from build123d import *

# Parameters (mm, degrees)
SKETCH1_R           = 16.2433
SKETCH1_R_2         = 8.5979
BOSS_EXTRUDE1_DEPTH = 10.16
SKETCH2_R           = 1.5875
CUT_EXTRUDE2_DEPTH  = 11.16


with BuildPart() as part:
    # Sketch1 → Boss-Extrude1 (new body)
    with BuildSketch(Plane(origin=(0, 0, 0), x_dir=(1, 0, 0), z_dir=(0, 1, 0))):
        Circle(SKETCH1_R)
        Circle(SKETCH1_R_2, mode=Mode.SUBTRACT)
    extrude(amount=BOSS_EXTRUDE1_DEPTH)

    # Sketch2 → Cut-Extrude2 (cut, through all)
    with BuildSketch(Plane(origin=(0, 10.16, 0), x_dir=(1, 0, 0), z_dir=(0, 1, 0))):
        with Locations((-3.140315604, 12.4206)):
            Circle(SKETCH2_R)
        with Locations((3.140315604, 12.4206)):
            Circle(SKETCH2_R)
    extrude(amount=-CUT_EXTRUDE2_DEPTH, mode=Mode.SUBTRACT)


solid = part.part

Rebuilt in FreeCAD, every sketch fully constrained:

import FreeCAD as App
import Part
import Sketcher

V = App.Vector
Q = App.Units.Quantity

doc = App.newDocument("Part")
body = doc.addObject("PartDesign::Body", "Body")

sketch1 = doc.addObject("Sketcher::SketchObject", "Sketch")
body.addObject(sketch1)
sketch1.AttachmentSupport = (doc.XZ_Plane, [""])
sketch1.MapMode = "FlatFace"
sketch1.addGeometry([
    Part.Circle(V(0, 0, 0), V(0, 0, 1), 16),
    Part.Circle(V(0, 0, 0), V(0, 0, 1), 9),
], False)
sketch1.addConstraint([
    Sketcher.Constraint("Coincident", 0, 3, -1, 1),
    Sketcher.Constraint("Coincident", 1, 3, -1, 1),
    Sketcher.Constraint("Diameter", 0, Q("1.279 in")),
    Sketcher.Constraint("Diameter", 1, Q("0.677 in")),
])
pad1 = doc.addObject("PartDesign::Pad", "Pad")
body.addObject(pad1)
pad1.Profile = sketch1
pad1.Length = Q("0.4 in")
pad1.Reversed = True

sketch2 = doc.addObject("Sketcher::SketchObject", "Sketch001")
body.addObject(sketch2)
sketch2.AttachmentSupport = (doc.XZ_Plane, [""])
sketch2.MapMode = "FlatFace"
sketch2.AttachmentOffset = App.Placement(V(0, 0, -0.4 * 25.4), App.Rotation())
sketch2.addGeometry([
    Part.Circle(V(-3.1, -12.4, 0), V(0, 0, 1), 1.6),
    Part.Circle(V(3.1, -12.4, 0), V(0, 0, 1), 1.6),
], False)
sketch2.addConstraint([
    Sketcher.Constraint("Equal", 0, 1),
    Sketcher.Constraint("Symmetric", 0, 3, 1, 3, -2),
    Sketcher.Constraint("Diameter", 0, Q("0.125 in")),
    Sketcher.Constraint("DistanceY", 0, 3, -1, 1, Q("0.489 in")),
    Sketcher.Constraint("DistanceX", 0, 3, 1, 3, 6.280631),
])
pocket1 = doc.addObject("PartDesign::Pocket", "Pocket")
body.addObject(pocket1)
pocket1.Profile = sketch2
pocket1.Type = "ThroughAll"
pocket1.Reversed = True

doc.recompute()
